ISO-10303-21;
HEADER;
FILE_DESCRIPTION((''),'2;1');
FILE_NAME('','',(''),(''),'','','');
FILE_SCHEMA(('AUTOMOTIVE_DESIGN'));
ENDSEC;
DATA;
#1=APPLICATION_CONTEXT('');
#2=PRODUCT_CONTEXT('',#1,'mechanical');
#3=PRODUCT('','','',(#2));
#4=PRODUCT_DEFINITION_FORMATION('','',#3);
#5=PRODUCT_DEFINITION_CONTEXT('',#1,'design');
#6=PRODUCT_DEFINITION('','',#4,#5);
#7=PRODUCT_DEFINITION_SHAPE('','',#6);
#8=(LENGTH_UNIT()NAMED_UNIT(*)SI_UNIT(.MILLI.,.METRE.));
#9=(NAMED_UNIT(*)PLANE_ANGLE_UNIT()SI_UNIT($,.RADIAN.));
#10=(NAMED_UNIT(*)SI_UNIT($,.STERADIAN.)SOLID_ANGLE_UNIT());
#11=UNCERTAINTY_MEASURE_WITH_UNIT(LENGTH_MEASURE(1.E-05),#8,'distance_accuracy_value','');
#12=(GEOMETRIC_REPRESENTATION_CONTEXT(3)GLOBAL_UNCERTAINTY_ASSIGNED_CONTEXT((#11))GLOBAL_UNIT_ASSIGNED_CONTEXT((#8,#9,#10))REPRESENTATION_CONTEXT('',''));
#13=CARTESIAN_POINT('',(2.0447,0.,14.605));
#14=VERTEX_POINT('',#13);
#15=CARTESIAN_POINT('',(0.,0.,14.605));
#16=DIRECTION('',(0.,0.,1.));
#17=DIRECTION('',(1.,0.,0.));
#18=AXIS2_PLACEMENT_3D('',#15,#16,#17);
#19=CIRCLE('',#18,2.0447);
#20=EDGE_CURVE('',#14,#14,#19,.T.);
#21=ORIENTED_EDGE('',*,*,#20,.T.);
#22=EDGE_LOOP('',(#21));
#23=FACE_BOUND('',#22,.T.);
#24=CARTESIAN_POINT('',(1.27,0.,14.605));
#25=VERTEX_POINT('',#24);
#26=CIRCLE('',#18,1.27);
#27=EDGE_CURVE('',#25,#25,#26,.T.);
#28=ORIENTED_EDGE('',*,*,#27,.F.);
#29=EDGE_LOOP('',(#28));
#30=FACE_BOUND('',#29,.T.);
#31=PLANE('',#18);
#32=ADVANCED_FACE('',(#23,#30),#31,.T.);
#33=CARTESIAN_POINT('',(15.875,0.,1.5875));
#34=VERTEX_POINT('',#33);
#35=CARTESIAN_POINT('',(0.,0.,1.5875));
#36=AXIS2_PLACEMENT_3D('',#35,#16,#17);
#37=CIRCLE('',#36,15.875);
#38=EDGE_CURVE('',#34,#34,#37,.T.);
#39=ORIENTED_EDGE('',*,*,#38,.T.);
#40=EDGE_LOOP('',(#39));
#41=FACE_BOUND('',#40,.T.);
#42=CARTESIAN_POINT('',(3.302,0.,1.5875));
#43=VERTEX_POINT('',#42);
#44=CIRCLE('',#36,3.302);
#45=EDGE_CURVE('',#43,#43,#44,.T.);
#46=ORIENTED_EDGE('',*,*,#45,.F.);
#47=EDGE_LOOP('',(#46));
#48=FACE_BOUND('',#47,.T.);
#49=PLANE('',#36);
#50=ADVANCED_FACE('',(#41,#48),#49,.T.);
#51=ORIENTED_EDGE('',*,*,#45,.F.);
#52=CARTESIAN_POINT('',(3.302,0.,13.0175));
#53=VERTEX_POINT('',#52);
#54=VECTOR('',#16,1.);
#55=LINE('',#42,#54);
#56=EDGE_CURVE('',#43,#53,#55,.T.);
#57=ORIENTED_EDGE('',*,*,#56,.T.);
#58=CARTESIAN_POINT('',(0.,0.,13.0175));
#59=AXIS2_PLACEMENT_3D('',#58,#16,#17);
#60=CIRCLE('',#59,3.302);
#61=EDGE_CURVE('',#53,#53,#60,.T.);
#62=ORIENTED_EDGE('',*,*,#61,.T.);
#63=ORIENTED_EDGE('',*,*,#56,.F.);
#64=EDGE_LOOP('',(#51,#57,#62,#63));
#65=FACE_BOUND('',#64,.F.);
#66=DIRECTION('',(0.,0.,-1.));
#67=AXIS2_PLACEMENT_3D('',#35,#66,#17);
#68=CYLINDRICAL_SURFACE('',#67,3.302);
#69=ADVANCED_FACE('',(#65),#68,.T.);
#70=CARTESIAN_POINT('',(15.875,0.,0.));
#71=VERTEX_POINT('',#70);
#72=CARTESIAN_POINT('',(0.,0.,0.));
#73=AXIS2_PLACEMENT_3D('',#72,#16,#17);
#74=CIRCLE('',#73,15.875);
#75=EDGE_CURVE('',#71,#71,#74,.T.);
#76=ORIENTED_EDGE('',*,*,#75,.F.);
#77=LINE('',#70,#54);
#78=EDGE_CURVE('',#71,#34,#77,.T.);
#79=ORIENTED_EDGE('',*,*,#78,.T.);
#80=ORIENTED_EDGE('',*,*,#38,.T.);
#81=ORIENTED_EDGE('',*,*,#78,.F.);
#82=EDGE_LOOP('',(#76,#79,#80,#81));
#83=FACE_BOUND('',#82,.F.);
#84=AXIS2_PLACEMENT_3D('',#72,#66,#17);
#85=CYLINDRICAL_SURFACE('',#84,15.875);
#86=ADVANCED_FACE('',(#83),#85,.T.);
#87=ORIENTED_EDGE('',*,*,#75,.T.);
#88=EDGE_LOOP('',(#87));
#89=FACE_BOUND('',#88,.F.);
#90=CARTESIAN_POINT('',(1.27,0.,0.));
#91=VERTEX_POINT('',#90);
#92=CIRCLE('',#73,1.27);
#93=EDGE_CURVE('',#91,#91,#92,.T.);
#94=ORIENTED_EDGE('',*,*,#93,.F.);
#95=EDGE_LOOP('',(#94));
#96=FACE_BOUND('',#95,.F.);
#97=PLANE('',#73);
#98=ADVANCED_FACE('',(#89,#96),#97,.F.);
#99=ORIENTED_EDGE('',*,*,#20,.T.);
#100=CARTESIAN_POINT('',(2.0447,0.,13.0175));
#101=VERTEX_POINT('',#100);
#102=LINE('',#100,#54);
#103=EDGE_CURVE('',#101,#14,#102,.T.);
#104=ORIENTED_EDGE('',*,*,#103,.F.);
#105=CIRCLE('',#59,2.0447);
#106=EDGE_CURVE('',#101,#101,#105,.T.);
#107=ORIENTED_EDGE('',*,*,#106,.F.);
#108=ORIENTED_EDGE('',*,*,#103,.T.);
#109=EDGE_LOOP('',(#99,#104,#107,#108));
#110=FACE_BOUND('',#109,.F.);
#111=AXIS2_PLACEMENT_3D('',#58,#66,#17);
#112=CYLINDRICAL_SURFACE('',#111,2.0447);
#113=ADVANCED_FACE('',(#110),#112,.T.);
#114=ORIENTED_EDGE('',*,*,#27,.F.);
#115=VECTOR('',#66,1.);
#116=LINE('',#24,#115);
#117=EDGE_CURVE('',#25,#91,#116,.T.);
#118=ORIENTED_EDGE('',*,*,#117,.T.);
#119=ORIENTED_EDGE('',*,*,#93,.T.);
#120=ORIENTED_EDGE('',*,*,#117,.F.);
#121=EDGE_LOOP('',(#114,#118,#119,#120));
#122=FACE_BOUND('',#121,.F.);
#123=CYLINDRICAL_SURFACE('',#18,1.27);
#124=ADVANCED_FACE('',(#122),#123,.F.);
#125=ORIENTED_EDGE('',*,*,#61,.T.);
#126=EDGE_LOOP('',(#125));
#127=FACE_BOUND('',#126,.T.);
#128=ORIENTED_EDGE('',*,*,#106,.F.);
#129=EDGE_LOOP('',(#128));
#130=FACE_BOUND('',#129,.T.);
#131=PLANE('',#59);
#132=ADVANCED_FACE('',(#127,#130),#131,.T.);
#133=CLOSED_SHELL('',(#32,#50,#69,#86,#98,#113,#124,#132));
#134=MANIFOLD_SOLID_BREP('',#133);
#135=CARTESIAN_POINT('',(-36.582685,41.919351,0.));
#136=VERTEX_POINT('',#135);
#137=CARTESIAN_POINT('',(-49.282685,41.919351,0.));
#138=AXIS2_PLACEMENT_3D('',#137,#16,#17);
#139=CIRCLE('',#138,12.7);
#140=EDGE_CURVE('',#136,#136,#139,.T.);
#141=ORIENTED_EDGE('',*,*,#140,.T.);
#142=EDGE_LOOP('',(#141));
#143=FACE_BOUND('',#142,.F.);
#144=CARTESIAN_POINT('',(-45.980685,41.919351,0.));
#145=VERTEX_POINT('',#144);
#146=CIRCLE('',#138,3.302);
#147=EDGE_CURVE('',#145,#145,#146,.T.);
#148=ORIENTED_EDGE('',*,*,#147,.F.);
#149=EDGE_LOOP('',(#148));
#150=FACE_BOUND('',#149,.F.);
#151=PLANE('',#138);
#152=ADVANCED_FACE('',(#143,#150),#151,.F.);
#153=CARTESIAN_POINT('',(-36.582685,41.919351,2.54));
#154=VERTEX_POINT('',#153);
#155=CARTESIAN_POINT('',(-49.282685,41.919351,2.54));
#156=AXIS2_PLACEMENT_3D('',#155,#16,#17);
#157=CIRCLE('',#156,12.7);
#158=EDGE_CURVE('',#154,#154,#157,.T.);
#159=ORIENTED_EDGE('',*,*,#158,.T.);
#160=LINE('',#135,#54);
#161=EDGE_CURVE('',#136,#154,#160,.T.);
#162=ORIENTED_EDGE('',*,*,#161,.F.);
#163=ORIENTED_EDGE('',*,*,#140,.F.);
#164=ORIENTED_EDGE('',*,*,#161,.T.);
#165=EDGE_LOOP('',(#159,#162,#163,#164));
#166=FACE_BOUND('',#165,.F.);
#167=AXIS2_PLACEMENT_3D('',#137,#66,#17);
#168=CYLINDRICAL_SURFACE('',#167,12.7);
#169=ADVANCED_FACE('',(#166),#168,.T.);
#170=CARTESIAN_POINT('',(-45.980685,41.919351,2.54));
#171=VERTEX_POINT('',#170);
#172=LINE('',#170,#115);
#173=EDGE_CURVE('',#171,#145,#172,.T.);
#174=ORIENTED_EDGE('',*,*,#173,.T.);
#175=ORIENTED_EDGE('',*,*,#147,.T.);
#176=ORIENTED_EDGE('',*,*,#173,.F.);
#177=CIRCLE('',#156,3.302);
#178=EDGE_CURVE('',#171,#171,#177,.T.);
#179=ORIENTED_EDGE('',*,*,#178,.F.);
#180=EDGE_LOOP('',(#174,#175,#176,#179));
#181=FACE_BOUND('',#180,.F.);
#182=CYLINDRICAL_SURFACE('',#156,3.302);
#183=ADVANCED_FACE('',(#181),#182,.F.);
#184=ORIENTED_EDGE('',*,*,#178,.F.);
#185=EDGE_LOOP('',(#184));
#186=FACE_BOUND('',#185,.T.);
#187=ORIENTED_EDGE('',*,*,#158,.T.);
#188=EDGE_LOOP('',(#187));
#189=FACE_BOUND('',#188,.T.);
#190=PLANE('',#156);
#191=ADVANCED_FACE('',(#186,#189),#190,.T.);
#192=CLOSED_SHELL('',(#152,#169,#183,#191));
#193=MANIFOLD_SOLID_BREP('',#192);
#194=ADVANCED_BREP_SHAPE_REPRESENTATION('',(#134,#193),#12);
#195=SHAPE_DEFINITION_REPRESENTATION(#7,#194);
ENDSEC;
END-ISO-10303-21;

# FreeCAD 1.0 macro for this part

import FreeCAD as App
import Part
import Sketcher
Q = App.Units.Quantity

doc = App.newDocument("Part")
body = doc.addObject("PartDesign::Body", "Body")

# Sketch on XY plane
sketch1 = body.newObject("Sketcher::SketchObject", "Sketch")
sketch1.AttachmentSupport = (doc.getObject("XY_Plane"), [""])
sketch1.MapMode = "FlatFace"
sketch1.addGeometry(Part.Circle(App.Vector(0, 0, 0), App.Vector(0, 0, 1), 16), False)
sketch1.addConstraint(Sketcher.Constraint("Coincident", 0, 3, -1, 1))
sketch1.addConstraint(Sketcher.Constraint("Diameter", 0, Q("1.25 in")))
pad1 = body.newObject("PartDesign::Pad", "Pad")
pad1.Profile = sketch1
pad1.Length = Q("0.0625 in")

# Sketch on XY plane
sketch2 = body.newObject("Sketcher::SketchObject", "Sketch001")
sketch2.AttachmentSupport = (doc.getObject("XY_Plane"), [""])
sketch2.MapMode = "FlatFace"
sketch2.AttachmentOffset = App.Placement(App.Vector(0, 0, 0.0625 * 25.4), App.Rotation())
sketch2.addGeometry(Part.Circle(App.Vector(0, 0, 0), App.Vector(0, 0, 1), 3.3), False)
sketch2.addConstraint(Sketcher.Constraint("Coincident", 0, 3, -1, 1))
sketch2.addConstraint(Sketcher.Constraint("Diameter", 0, Q("0.26 in")))
pad2 = body.newObject("PartDesign::Pad", "Pad001")
pad2.Profile = sketch2
pad2.Length = Q("0.45 in")

# Sketch on XY plane
sketch3 = body.newObject("Sketcher::SketchObject", "Sketch002")
sketch3.AttachmentSupport = (doc.getObject("XY_Plane"), [""])
sketch3.MapMode = "FlatFace"
sketch3.AttachmentOffset = App.Placement(App.Vector(0, 0, 0.5125 * 25.4), App.Rotation())
sketch3.addGeometry(Part.Circle(App.Vector(0, 0, 0), App.Vector(0, 0, 1), 2), False)
sketch3.addConstraint(Sketcher.Constraint("Coincident", 0, 3, -1, 1))
sketch3.addConstraint(Sketcher.Constraint("Diameter", 0, Q("0.161 in")))
pad3 = body.newObject("PartDesign::Pad", "Pad002")
pad3.Profile = sketch3
pad3.Length = Q("0.0625 in")

# Sketch on XY plane
sketch4 = body.newObject("Sketcher::SketchObject", "Sketch003")
sketch4.AttachmentSupport = (doc.getObject("XY_Plane"), [""])
sketch4.MapMode = "FlatFace"
sketch4.AttachmentOffset = App.Placement(App.Vector(0, 0, 0.575 * 25.4), App.Rotation())
sketch4.addGeometry(Part.Circle(App.Vector(0, 0, 0), App.Vector(0, 0, 1), 1.3), False)
sketch4.addConstraint(Sketcher.Constraint("Coincident", 0, 3, -1, 1))
sketch4.addConstraint(Sketcher.Constraint("Diameter", 0, Q("0.1 in")))
pocket1 = body.newObject("PartDesign::Pocket", "Pocket")
pocket1.Profile = sketch4
pocket1.Length = Q("0.75 in")

# Sketch on XY plane
sketch5 = body.newObject("Sketcher::SketchObject", "Sketch004")
sketch5.AttachmentSupport = (doc.getObject("XY_Plane"), [""])
sketch5.MapMode = "FlatFace"
sketch5.addGeometry(Part.Circle(App.Vector(0, 0, 0), App.Vector(0, 0, 1), 2.7), False)
sketch5.addConstraint(Sketcher.Constraint("Coincident", 0, 3, -1, 1))
sketch5.addConstraint(Sketcher.Constraint("Diameter", 0, Q("0.21 in")))
pocket2 = body.newObject("PartDesign::Pocket", "Pocket001")
pocket2.Profile = sketch5
pocket2.Length = Q("0.25 in")
body2 = doc.addObject("PartDesign::Body", "Body001")

# Sketch on XY plane
sketch6 = body2.newObject("Sketcher::SketchObject", "Sketch005")
sketch6.AttachmentSupport = (doc.getObject("XY_Plane001"), [""])
sketch6.MapMode = "FlatFace"
sketch6.addGeometry(Part.Circle(App.Vector(-49, 42, 0), App.Vector(0, 0, 1), 13), False)
sketch6.addConstraint(Sketcher.Constraint("Diameter", 0, Q("1 in")))
sketch6.addConstraint(Sketcher.Constraint("DistanceY", -1, 1, 0, 3, 41.919351))
sketch6.addConstraint(Sketcher.Constraint("DistanceX", 0, 3, -1, 1, 49.282685))
pad4 = body2.newObject("PartDesign::Pad", "Pad003")
pad4.Profile = sketch6
pad4.Length = Q("0.1 in")

# Sketch on XY plane
sketch7 = body2.newObject("Sketcher::SketchObject", "Sketch006")
sketch7.AttachmentSupport = (doc.getObject("XY_Plane001"), [""])
sketch7.MapMode = "FlatFace"
sketch7.AttachmentOffset = App.Placement(App.Vector(0, 0, 0.1 * 25.4), App.Rotation())
sketch7.addGeometry(Part.Circle(App.Vector(-49.3, 41.9, 0), App.Vector(0, 0, 1), 3.3), False)
sketch7.addConstraint(Sketcher.Constraint("Diameter", 0, Q("0.26 in")))
sketch7.addConstraint(Sketcher.Constraint("DistanceY", -1, 1, 0, 3, 41.919351))
sketch7.addConstraint(Sketcher.Constraint("DistanceX", 0, 3, -1, 1, 49.282685))
pocket3 = body2.newObject("PartDesign::Pocket", "Pocket002")
pocket3.Profile = sketch7
pocket3.Length = Q("0.1 in")

doc.recompute()
